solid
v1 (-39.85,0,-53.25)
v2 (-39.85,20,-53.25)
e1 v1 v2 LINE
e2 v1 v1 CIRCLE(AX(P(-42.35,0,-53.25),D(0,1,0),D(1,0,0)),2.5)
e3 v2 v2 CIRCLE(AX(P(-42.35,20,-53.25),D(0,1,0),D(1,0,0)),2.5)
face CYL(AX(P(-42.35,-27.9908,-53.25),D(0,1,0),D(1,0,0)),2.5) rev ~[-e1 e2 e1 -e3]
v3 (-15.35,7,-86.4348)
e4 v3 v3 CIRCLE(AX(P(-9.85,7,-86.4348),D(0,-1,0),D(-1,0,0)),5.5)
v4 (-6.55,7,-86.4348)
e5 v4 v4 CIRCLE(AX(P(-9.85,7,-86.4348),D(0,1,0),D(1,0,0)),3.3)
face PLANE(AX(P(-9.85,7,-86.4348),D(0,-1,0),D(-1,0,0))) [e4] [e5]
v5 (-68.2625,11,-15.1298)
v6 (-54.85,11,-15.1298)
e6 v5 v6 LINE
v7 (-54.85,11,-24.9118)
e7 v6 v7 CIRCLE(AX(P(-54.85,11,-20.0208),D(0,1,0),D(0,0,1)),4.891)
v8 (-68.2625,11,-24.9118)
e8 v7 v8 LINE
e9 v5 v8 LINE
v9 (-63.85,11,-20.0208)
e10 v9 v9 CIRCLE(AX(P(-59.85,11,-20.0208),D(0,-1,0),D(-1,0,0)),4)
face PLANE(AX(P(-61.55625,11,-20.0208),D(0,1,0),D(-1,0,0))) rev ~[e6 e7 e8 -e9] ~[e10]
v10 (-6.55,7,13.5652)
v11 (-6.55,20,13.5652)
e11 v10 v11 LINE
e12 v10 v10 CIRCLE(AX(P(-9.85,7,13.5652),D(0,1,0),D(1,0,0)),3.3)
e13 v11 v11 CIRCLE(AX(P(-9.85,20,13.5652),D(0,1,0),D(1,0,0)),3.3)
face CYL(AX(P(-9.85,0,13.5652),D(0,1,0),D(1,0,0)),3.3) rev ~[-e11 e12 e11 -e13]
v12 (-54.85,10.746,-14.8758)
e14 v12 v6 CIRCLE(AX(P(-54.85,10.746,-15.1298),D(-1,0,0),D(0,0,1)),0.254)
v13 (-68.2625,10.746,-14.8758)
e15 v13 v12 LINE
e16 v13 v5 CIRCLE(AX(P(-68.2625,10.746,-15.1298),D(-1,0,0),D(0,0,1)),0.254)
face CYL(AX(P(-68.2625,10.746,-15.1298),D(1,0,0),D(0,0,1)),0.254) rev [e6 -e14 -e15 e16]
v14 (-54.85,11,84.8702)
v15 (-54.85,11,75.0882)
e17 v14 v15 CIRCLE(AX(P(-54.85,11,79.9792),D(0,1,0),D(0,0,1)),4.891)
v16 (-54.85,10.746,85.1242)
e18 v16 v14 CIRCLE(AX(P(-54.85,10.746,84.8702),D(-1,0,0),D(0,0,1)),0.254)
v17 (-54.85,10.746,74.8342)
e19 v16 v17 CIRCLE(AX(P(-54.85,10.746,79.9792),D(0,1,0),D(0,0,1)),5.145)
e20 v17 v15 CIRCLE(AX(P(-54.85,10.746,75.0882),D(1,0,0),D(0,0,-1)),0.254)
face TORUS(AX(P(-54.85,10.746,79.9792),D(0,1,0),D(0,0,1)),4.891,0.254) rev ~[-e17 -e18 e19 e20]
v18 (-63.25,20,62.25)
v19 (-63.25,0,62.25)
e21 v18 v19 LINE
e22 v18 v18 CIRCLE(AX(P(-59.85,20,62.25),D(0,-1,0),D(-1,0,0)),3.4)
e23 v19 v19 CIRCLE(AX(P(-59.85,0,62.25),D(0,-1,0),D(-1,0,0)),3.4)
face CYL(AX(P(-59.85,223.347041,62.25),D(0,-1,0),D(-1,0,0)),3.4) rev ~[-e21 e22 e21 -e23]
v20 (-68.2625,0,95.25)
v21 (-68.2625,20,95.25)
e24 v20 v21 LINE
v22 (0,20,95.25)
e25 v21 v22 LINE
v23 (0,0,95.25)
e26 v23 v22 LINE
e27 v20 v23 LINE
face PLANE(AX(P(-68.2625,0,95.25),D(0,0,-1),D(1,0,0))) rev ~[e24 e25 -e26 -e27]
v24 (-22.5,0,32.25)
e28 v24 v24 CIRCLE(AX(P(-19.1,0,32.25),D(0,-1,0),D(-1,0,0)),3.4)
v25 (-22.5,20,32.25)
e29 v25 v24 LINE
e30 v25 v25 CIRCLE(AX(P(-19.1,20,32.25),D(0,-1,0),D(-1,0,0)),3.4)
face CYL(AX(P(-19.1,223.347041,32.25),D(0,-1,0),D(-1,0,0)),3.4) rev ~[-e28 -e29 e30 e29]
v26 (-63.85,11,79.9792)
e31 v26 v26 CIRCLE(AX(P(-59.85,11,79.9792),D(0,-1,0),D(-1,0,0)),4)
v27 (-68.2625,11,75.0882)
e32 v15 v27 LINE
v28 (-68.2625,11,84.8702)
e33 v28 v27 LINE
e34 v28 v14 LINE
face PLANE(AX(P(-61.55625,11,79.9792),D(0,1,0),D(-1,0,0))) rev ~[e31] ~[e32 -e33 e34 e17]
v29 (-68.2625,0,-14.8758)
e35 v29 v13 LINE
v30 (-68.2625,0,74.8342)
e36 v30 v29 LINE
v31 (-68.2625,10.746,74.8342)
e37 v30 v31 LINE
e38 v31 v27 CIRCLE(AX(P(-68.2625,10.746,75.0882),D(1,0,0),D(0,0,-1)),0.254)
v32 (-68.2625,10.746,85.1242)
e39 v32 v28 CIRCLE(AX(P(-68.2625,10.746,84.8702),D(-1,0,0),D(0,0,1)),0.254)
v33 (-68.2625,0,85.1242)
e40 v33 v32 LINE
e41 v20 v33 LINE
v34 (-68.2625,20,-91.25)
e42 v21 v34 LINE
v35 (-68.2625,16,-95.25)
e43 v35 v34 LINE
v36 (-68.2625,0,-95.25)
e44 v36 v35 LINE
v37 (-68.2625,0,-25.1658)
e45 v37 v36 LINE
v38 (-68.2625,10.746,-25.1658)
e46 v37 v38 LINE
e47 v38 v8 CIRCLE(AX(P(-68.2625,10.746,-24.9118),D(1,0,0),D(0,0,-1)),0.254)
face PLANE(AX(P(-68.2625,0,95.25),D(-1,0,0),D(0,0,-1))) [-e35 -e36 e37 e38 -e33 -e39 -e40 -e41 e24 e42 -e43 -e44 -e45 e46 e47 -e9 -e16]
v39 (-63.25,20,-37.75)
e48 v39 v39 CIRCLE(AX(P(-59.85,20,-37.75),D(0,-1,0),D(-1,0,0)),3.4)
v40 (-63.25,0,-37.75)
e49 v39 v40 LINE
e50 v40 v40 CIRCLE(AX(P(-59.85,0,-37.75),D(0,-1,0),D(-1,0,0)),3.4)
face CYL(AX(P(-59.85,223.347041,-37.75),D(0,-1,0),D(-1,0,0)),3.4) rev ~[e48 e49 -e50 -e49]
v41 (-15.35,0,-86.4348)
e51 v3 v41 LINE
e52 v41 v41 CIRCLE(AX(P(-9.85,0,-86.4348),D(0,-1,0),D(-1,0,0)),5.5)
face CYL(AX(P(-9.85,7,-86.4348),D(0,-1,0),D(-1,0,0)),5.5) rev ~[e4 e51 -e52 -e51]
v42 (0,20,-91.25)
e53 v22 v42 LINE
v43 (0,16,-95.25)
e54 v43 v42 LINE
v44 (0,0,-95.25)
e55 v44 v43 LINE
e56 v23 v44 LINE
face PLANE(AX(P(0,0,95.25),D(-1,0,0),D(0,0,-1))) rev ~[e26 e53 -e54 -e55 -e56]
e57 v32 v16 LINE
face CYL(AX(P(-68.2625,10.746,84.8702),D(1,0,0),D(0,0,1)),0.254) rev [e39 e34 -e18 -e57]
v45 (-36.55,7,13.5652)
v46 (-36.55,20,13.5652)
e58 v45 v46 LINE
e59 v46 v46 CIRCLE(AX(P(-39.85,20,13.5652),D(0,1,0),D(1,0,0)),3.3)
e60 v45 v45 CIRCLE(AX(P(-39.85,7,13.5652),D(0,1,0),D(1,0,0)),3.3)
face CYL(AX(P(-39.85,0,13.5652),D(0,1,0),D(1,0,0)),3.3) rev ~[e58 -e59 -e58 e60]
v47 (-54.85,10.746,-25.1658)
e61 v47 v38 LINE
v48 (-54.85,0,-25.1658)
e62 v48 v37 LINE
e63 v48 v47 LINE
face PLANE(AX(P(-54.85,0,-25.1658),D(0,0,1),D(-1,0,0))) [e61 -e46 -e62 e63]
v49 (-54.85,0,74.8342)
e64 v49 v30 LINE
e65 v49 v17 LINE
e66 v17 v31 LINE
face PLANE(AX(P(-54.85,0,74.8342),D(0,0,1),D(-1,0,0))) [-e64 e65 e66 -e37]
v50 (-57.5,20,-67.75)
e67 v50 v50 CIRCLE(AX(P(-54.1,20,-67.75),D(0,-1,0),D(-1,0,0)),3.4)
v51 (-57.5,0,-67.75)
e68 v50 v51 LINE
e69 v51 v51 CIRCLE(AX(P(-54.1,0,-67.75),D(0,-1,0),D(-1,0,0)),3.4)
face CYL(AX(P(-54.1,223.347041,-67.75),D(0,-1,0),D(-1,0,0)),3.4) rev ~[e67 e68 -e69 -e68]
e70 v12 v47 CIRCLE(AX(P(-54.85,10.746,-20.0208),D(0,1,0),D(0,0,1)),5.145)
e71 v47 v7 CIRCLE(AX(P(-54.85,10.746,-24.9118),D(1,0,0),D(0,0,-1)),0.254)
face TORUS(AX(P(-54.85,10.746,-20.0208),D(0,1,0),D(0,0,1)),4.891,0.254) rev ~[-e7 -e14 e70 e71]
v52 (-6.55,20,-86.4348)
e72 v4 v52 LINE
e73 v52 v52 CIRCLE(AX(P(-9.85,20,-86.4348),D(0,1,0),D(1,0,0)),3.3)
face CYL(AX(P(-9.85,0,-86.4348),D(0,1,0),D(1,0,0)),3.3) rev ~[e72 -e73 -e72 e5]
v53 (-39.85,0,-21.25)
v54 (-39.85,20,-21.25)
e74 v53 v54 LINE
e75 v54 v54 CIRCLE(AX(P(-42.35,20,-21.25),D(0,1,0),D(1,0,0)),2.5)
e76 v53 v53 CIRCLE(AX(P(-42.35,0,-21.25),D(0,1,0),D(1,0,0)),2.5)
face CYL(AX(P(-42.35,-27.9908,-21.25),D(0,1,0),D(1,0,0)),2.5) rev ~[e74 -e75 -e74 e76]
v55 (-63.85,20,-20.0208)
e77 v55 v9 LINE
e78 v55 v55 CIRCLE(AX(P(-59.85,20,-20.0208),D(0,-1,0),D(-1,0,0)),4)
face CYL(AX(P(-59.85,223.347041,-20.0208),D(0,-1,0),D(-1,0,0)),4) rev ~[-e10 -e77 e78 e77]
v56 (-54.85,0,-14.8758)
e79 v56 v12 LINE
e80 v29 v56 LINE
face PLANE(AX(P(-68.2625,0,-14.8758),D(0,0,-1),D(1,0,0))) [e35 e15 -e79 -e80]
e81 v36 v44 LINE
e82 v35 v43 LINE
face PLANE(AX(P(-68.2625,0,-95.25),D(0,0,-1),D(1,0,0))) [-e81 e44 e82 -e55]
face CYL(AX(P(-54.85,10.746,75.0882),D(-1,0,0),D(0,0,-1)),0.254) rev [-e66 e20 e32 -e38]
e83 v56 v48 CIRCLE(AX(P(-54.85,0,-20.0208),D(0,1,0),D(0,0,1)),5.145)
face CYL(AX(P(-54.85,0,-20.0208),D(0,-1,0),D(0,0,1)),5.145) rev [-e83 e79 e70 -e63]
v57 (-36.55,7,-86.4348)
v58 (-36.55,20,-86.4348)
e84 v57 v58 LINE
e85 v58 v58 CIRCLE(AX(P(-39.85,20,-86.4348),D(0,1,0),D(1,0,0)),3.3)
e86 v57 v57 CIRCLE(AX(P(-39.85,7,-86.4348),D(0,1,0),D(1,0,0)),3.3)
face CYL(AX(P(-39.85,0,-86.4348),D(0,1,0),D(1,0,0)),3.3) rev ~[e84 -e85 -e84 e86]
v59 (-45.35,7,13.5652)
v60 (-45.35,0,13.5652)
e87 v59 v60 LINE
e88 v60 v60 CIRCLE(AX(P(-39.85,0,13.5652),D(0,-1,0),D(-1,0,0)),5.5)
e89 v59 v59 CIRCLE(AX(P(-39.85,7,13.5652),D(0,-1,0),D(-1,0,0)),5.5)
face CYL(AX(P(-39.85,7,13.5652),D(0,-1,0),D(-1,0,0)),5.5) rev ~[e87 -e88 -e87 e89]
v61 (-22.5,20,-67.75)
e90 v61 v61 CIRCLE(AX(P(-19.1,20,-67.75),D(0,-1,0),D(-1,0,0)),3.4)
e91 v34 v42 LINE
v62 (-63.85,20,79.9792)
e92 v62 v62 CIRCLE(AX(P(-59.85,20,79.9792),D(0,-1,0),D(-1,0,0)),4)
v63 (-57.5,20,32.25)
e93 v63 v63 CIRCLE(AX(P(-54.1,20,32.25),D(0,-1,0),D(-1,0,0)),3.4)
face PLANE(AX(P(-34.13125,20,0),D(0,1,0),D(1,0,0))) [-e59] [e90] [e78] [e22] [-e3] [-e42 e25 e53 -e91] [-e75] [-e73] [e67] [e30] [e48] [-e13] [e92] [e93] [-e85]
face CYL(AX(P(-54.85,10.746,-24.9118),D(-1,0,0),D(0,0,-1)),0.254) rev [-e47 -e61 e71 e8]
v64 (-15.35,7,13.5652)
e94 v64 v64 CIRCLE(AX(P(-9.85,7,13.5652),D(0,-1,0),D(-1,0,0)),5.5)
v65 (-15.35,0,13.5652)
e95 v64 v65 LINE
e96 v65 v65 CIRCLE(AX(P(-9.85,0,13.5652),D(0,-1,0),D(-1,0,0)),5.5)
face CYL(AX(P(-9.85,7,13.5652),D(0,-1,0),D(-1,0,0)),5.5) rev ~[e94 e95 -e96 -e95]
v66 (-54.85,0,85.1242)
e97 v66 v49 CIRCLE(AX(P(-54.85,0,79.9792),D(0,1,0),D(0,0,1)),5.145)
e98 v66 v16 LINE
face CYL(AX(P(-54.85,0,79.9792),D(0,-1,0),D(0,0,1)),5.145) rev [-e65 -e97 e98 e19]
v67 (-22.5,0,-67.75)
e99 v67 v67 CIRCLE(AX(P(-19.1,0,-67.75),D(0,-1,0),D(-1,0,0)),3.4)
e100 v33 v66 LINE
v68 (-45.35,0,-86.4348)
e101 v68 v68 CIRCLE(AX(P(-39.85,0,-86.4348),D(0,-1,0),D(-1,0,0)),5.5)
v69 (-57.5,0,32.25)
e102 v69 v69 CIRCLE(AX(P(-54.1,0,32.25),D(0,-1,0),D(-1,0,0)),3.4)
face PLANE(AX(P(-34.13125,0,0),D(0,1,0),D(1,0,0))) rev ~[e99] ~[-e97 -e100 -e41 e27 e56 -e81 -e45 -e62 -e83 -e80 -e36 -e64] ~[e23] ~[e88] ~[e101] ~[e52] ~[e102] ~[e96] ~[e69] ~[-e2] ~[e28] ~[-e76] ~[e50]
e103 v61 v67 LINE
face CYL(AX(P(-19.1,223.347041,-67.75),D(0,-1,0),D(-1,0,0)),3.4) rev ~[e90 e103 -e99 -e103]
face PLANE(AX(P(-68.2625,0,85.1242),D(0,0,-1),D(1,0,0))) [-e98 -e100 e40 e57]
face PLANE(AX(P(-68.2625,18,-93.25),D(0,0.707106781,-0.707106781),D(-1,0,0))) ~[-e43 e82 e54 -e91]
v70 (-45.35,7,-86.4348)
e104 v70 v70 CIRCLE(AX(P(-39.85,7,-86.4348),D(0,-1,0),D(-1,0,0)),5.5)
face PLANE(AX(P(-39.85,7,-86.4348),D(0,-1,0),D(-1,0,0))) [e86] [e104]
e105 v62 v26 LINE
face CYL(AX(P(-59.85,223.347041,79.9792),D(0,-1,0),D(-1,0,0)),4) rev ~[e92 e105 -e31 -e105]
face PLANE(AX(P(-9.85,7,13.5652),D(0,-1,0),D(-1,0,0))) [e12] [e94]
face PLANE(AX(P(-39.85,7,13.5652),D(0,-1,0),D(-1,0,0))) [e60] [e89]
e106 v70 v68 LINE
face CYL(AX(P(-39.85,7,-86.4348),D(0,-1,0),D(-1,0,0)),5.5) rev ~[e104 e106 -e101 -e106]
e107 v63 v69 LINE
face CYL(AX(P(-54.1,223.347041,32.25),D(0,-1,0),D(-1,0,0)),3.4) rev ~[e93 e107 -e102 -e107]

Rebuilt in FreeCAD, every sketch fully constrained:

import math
import FreeCAD as App
import Part
import Sketcher

V = App.Vector


def edges_at(feature, points):
    """Names of the edges that pass closest to the given points."""
    edges = feature.Shape.Edges
    near = lambda p: min(range(len(edges)), key=lambda i: edges[i].distToShape(Part.Vertex(*p))[0])
    return sorted({f"Edge{near(p) + 1}" for p in points})

doc = App.newDocument("Part")
body = doc.addObject("PartDesign::Body", "Body")

# Sketch on XZ plane
sketch1 = doc.addObject("Sketcher::SketchObject", "Sketch")
body.addObject(sketch1)
sketch1.AttachmentSupport = (doc.XZ_Plane, [""])
sketch1.MapMode = "FlatFace"
sketch1.addGeometry([
    Part.LineSegment(V(-68, -95, 0), V(-68, 95, 0)),
    Part.LineSegment(V(-68, 95, 0), V(0, 95, 0)),
    Part.LineSegment(V(0, 95, 0), V(0, -95, 0)),
    Part.LineSegment(V(0, -95, 0), V(-68, -95, 0)),
], False)
sketch1.addConstraint([
    Sketcher.Constraint("Coincident", 0, 2, 1, 1),
    Sketcher.Constraint("Coincident", 1, 2, 2, 1),
    Sketcher.Constraint("Coincident", 2, 2, 3, 1),
    Sketcher.Constraint("Coincident", 3, 2, 0, 1),
    Sketcher.Constraint("Vertical", 0),
    Sketcher.Constraint("Horizontal", 1),
    Sketcher.Constraint("Vertical", 2),
    Sketcher.Constraint("Horizontal", 3),
    Sketcher.Constraint("Symmetric", 1, 2, 2, 2, -1, 1),
    Sketcher.Constraint("DistanceY", 0, 1, 0, 2, 190.5),
    Sketcher.Constraint("DistanceX", 1, 1, 1, 2, 68.2625),
])
pad1 = doc.addObject("PartDesign::Pad", "Pad")
body.addObject(pad1)
pad1.Profile = sketch1
pad1.Length = 20
pad1.Reversed = True
doc.recompute()

chamfer = doc.addObject("PartDesign::Chamfer", "Chamfer")
body.addObject(chamfer)
chamfer.Base = (pad1, edges_at(pad1, [(-34.131, 20, -95.25)]))
chamfer.Size = 4

# Sketch on XZ plane
sketch2 = doc.addObject("Sketcher::SketchObject", "Sketch001")
body.addObject(sketch2)
sketch2.AttachmentSupport = (doc.XZ_Plane, [""])
sketch2.MapMode = "FlatFace"
sketch2.AttachmentOffset = App.Placement(V(0, 0, -20), App.Rotation())
sketch2.addGeometry([
    Part.Circle(V(-59.9, 62.2, 0), V(0, 0, 1), 3.4),  # 0
    Part.Circle(V(-54.1, 32.2, 0), V(0, 0, 1), 3.4),  # 1
    Part.Circle(V(-19.1, 32.2, 0), V(0, 0, 1), 3.4),  # 2
    Part.Circle(V(-59.9, -37.8, 0), V(0, 0, 1), 3.4),  # 3
    Part.Circle(V(-54.1, -67.8, 0), V(0, 0, 1), 3.4),  # 4
    Part.Circle(V(-19.1, -67.8, 0), V(0, 0, 1), 3.4),  # 5
], False)
sketch2.addConstraint([
    Sketcher.Constraint("Equal", 0, 1),
    Sketcher.Constraint("Equal", 1, 2),
    Sketcher.Constraint("Equal", 2, 3),
    Sketcher.Constraint("Equal", 3, 4),
    Sketcher.Constraint("Equal", 4, 5),
    Sketcher.Constraint("Horizontal", 1, 3, 2, 3),
    Sketcher.Constraint("Horizontal", 4, 3, 5, 3),
    Sketcher.Constraint("Vertical", 0, 3, 3, 3),
    Sketcher.Constraint("Vertical", 1, 3, 4, 3),
    Sketcher.Constraint("Vertical", 2, 3, 5, 3),
    Sketcher.Constraint("Diameter", 0, 6.8),
    Sketcher.Constraint("DistanceY", 1, 3, 0, 3, 30.0),
    Sketcher.Constraint("DistanceX", 1, 3, 2, 3, 35.0),
    Sketcher.Constraint("DistanceY", 3, 3, 1, 3, 70.0),
    Sketcher.Constraint("DistanceY", 4, 3, 3, 3, 30.0),
    Sketcher.Constraint("DistanceX", 1, 3, -1, 1, 54.1),
    Sketcher.Constraint("DistanceX", 0, 3, -1, 1, 59.85),
    Sketcher.Constraint("DistanceY", -1, 1, 0, 3, 62.25),
])
doc.recompute()
hole = doc.addObject("PartDesign::Hole", "Hole")
body.addObject(hole)
hole.Profile = sketch2
hole.ThreadType = "None"
hole.Diameter = 6.8
hole.DepthType = "ThroughAll"
hole.Reversed = True

# Sketch on XZ plane
sketch3 = doc.addObject("Sketcher::SketchObject", "Sketch002")
body.addObject(sketch3)
sketch3.AttachmentSupport = (doc.XZ_Plane, [""])
sketch3.MapMode = "FlatFace"
sketch3.AttachmentOffset = App.Placement(V(0, 0, -20), App.Rotation())
sketch3.addGeometry([
    Part.Circle(V(-59.9, -20, 0), V(0, 0, 1), 4),
    Part.Circle(V(-59.9, 80, 0), V(0, 0, 1), 4),
], False)
sketch3.addConstraint([
    Sketcher.Constraint("Equal", 0, 1),
    Sketcher.Constraint("Vertical", 0, 3, 1, 3),
    Sketcher.Constraint("Diameter", 0, 8.0),
    Sketcher.Constraint("DistanceY", 0, 3, 1, 3, 100.0),
    Sketcher.Constraint("DistanceX", 0, 3, -1, 1, 59.85),
    Sketcher.Constraint("DistanceY", 0, 3, -1, 1, 20.0208),
])
doc.recompute()
hole2 = doc.addObject("PartDesign::Hole", "Hole001")
body.addObject(hole2)
hole2.Profile = sketch3
hole2.ThreadType = "None"
hole2.Diameter = 8
hole2.DepthType = "ThroughAll"
hole2.Reversed = True

# Sketch on XZ plane
sketch4 = doc.addObject("Sketcher::SketchObject", "Sketch003")
body.addObject(sketch4)
sketch4.AttachmentSupport = (doc.XZ_Plane, [""])
sketch4.MapMode = "FlatFace"
sketch4.addGeometry([
    Part.LineSegment(V(-55, 85, 0), V(-68, 85, 0)),  # 0
    Part.ArcOfCircle(Part.Circle(V(-68, 80, 0), V(0, 0, 1), 5), math.radians(90), math.radians(270)),  # 1
    Part.LineSegment(V(-68, 75, 0), V(-55, 75, 0)),  # 2
    Part.ArcOfCircle(Part.Circle(V(-55, 80, 0), V(0, 0, 1), 5), math.radians(-90), math.radians(90)),  # 3
    Part.LineSegment(V(-55, -15, 0), V(-68, -15, 0)),  # 4
    Part.ArcOfCircle(Part.Circle(V(-68, -20, 0), V(0, 0, 1), 5), math.radians(90), math.radians(270)),  # 5
    Part.LineSegment(V(-68, -25, 0), V(-55, -25, 0)),  # 6
    Part.ArcOfCircle(Part.Circle(V(-55, -20, 0), V(0, 0, 1), 5), math.radians(-90), math.radians(90)),  # 7
], False)
sketch4.addConstraint([
    Sketcher.Constraint("Tangent", 0, 2, 1, 1),
    Sketcher.Constraint("Tangent", 1, 2, 2, 1),
    Sketcher.Constraint("Tangent", 2, 2, 3, 1),
    Sketcher.Constraint("Tangent", 3, 2, 0, 1),
    Sketcher.Constraint("Tangent", 4, 2, 5, 1),
    Sketcher.Constraint("Tangent", 5, 2, 6, 1),
    Sketcher.Constraint("Tangent", 6, 2, 7, 1),
    Sketcher.Constraint("Tangent", 7, 2, 4, 1),
    Sketcher.Constraint("Horizontal", 0),
    Sketcher.Constraint("Horizontal", 2),
    Sketcher.Constraint("Horizontal", 4),
    Sketcher.Constraint("Horizontal", 6),
    Sketcher.Constraint("Equal", 3, 5),
    Sketcher.Constraint("Vertical", 1, 3, 5, 3),
    Sketcher.Constraint("Vertical", 3, 3, 7, 3),
    Sketcher.Constraint("Radius", 1, 5.145),
    Sketcher.Constraint("DistanceY", 5, 3, 1, 3, 100.0),
    Sketcher.Constraint("DistanceX", 3, 3, -1, 1, 54.85),
    Sketcher.Constraint("DistanceX", 0, 2, 0, 1, 13.4125),
    Sketcher.Constraint("DistanceY", -1, 1, 1, 3, 79.9792),
])
pocket1 = doc.addObject("PartDesign::Pocket", "Pocket")
body.addObject(pocket1)
pocket1.Profile = sketch4
pocket1.Length = 11
doc.recompute()

fillet = doc.addObject("PartDesign::Fillet", "Fillet")
body.addObject(fillet)
fillet.Base = (pocket1, edges_at(pocket1, [
    (-61.556, 11, 85.124),
    (-49.705, 11, 79.979),
    (-61.556, 11, 74.834),
    (-61.556, 11, -14.876),
    (-49.705, 11, -20.021),
    (-61.556, 11, -25.166),
]))
fillet.Radius = 0.254

# Sketch on XZ plane
sketch5 = doc.addObject("Sketcher::SketchObject", "Sketch004")
body.addObject(sketch5)
sketch5.AttachmentSupport = (doc.XZ_Plane, [""])
sketch5.MapMode = "FlatFace"
sketch5.addGeometry([
    Part.Circle(V(-9.8, -86.4, 0), V(0, 0, 1), 3.3),
    Part.Circle(V(-39.8, -86.4, 0), V(0, 0, 1), 3.3),
    Part.Circle(V(-39.8, 13.6, 0), V(0, 0, 1), 3.3),
    Part.Circle(V(-9.8, 13.6, 0), V(0, 0, 1), 3.3),
], False)
sketch5.addConstraint([
    Sketcher.Constraint("Equal", 0, 1),
    Sketcher.Constraint("Equal", 1, 2),
    Sketcher.Constraint("Equal", 2, 3),
    Sketcher.Constraint("Horizontal", 0, 3, 1, 3),
    Sketcher.Constraint("Horizontal", 2, 3, 3, 3),
    Sketcher.Constraint("Vertical", 1, 3, 2, 3),
    Sketcher.Constraint("Vertical", 0, 3, 3, 3),
    Sketcher.Constraint("Diameter", 0, 6.6),
    Sketcher.Constraint("DistanceX", 1, 3, 0, 3, 30.0),
    Sketcher.Constraint("DistanceY", 1, 3, 2, 3, 100.0),
    Sketcher.Constraint("DistanceX", 0, 3, -1, 1, 9.85),
    Sketcher.Constraint("DistanceY", 0, 3, -1, 1, 86.4348),
])
doc.recompute()
hole3 = doc.addObject("PartDesign::Hole", "Hole002")
body.addObject(hole3)
hole3.Profile = sketch5
hole3.ThreadType = "None"
hole3.Diameter = 6.6
hole3.DepthType = "ThroughAll"
hole3.HoleCutType = "Counterbore"
hole3.HoleCutDiameter = 11
hole3.HoleCutDepth = 7

# Sketch on XZ plane
sketch6 = doc.addObject("Sketcher::SketchObject", "Sketch005")
body.addObject(sketch6)
sketch6.AttachmentSupport = (doc.XZ_Plane, [""])
sketch6.MapMode = "FlatFace"
sketch6.addGeometry([
    Part.Circle(V(-42.4, -21.2, 0), V(0, 0, 1), 2.5),
    Part.Circle(V(-42.4, -53.2, 0), V(0, 0, 1), 2.5),
], False)
sketch6.addConstraint([
    Sketcher.Constraint("Equal", 0, 1),
    Sketcher.Constraint("Vertical", 0, 3, 1, 3),
    Sketcher.Constraint("Diameter", 0, 5.0),
    Sketcher.Constraint("DistanceY", 1, 3, 0, 3, 32.0),
    Sketcher.Constraint("DistanceX", 0, 3, -1, 1, 42.35),
    Sketcher.Constraint("DistanceY", 0, 3, -1, 1, 21.25),
])
doc.recompute()
hole4 = doc.addObject("PartDesign::Hole", "Hole003")
body.addObject(hole4)
hole4.Profile = sketch6
hole4.ThreadType = "None"
hole4.Diameter = 5
hole4.DepthType = "Dimension"
hole4.Depth = 27.9908
hole4.DrillPoint = "Angled"
hole4.DrillPointAngle = 118

doc.recompute()
